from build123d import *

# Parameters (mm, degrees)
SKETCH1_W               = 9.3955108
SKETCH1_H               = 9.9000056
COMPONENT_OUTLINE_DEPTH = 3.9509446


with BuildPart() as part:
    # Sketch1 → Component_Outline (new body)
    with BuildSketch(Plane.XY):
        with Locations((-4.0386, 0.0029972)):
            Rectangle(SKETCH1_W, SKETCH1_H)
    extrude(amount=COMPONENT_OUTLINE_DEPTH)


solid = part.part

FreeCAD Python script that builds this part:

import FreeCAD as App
import Part
import Sketcher

doc = App.newDocument("Part")
body = doc.addObject("PartDesign::Body", "Body")

sketch1 = body.newObject("Sketcher::SketchObject", "Sketch")
sketch1.AttachmentSupport = (doc.getObject("XY_Plane"), [""])
sketch1.MapMode = "FlatFace"
sketch1.addGeometry([
    Part.LineSegment(App.Vector(-8.736355, 4.953, 0), App.Vector(-8.736355, -4.947006, 0)),
    Part.LineSegment(App.Vector(-8.736355, -4.947006, 0), App.Vector(0.659155, -4.947006, 0)),
    Part.LineSegment(App.Vector(0.659155, -4.947006, 0), App.Vector(0.659155, 4.953, 0)),
    Part.LineSegment(App.Vector(0.659155, 4.953, 0), App.Vector(-8.736355, 4.953, 0)),
], False)
sketch1.addConstraint([
    Sketcher.Constraint("Coincident", 0, 2, 1, 1),
    Sketcher.Constraint("Coincident", 1, 2, 2, 1),
    Sketcher.Constraint("Coincident", 2, 2, 3, 1),
    Sketcher.Constraint("Coincident", 3, 2, 0, 1),
    Sketcher.Constraint("Vertical", 0),
    Sketcher.Constraint("Horizontal", 1),
    Sketcher.Constraint("Vertical", 2),
    Sketcher.Constraint("Horizontal", 3),
    Sketcher.Constraint("DistanceY", -1, 1, 2, 2, 4.953),
    Sketcher.Constraint("DistanceX", 1, 1, 1, 2, 9.395511),
    Sketcher.Constraint("DistanceY", 0, 2, 0, 1, 9.900006),
    Sketcher.Constraint("DistanceX", 0, 2, -1, 1, 8.736355),
])
pad1 = body.newObject("PartDesign::Pad", "Pad")
pad1.Profile = sketch1
pad1.Length = 3.950945

doc.recompute()
